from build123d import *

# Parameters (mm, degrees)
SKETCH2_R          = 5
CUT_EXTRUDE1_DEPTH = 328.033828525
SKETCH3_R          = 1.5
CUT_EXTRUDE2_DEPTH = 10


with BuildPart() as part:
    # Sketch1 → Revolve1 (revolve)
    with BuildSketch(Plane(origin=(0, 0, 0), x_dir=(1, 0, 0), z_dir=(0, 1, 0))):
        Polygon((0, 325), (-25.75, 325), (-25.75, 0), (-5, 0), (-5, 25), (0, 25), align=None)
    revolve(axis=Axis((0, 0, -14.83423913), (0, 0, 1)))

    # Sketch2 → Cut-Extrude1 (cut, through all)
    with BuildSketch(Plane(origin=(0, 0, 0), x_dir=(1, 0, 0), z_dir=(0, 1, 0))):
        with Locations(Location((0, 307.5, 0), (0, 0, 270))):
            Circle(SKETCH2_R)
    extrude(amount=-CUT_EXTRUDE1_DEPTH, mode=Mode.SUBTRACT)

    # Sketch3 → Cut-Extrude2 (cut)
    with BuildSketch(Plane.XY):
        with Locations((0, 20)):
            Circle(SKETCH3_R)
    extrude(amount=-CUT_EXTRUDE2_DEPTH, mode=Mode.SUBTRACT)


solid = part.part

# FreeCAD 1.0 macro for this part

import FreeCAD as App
import Part
import Sketcher
from FreeCAD import Vector


def add_polygon(sketch, points):
    """Adds a closed chain of lines whose ends are joined by coincident constraints."""
    first, n = sketch.GeometryCount, len(points)
    for a, b in zip(points, points[1:] + points[:1]):
        sketch.addGeometry(Part.LineSegment(App.Vector(*a, 0), App.Vector(*b, 0)), False)
    for i in range(n):
        sketch.addConstraint(Sketcher.Constraint("Coincident", first + i, 2, first + (i + 1) % n, 1))

doc = App.newDocument("Part")
params = doc.addObject("Spreadsheet::Sheet", "Params")
for row, (alias, value) in enumerate([
    ("sketch1_width", "5 mm"),
    ("sketch1_height", "325 mm"),
    ("sketch1_height2", "25 mm"),
    ("sketch1_width2", "25.75 mm"),
    ("revolution_angle", "360 deg"),
    ("sketch2_diameter", "10 mm"),
    ("sketch3_diameter", "3 mm"),
    ("pocket2_length", "10 mm"),
], start=1):
    params.set(f"A{row}", alias)
    params.set(f"B{row}", "=" + value)
    params.setAlias(f"B{row}", alias)

body = doc.addObject("PartDesign::Body", "Body")

sketch1 = doc.addObject("Sketcher::SketchObject", "Sketch")
body.addObject(sketch1)
sketch1.AttachmentSupport = (doc.XZ_Plane, [""])
sketch1.MapMode = "FlatFace"
add_polygon(sketch1, [(0, -325), (-26, -325), (-26, 0), (-5, 0), (-5, -25), (0, -25)])
sketch1.addConstraint([
    Sketcher.Constraint("Horizontal", 0),
    Sketcher.Constraint("Vertical", 1),
    Sketcher.Constraint("Horizontal", 2),
    Sketcher.Constraint("Vertical", 3),
    Sketcher.Constraint("Horizontal", 4),
    Sketcher.Constraint("Vertical", 5),
    Sketcher.Constraint("PointOnObject", 1, 2, -1),
    Sketcher.Constraint("PointOnObject", 4, 2, -2),
    Sketcher.Constraint("DistanceX", 4, 1, 4, 2, 5.0),
    Sketcher.Constraint("DistanceY", 1, 1, 1, 2, 325.0),
    Sketcher.Constraint("DistanceY", 3, 2, 3, 1, 25.0),
    Sketcher.Constraint("DistanceX", 0, 2, 0, 1, 25.75),
])
sketch1.setExpression("Constraints[14]", "Params.sketch1_width")
sketch1.setExpression("Constraints[15]", "Params.sketch1_height")
sketch1.setExpression("Constraints[16]", "Params.sketch1_height2")
sketch1.setExpression("Constraints[17]", "Params.sketch1_width2")
revolution = doc.addObject("PartDesign::Revolution", "Revolution")
body.addObject(revolution)
revolution.Profile = sketch1
revolution.ReferenceAxis = (sketch1, ["V_Axis"])
revolution.setExpression("Angle", "Params.revolution_angle")

sketch2 = doc.addObject("Sketcher::SketchObject", "Sketch001")
body.addObject(sketch2)
sketch2.AttachmentSupport = (doc.XZ_Plane, [""])
sketch2.MapMode = "FlatFace"
sketch2.addGeometry(Part.Circle(Vector(0, -308, 0), Vector(0, 0, 1), 5), False)
sketch2.addConstraint([
    Sketcher.Constraint("PointOnObject", 0, 3, -2),
    Sketcher.Constraint("Diameter", 0, 10.0),
    Sketcher.Constraint("DistanceY", 0, 3, -1, 1, 307.5),
])
sketch2.setExpression("Constraints[1]", "Params.sketch2_diameter")
pocket1 = doc.addObject("PartDesign::Pocket", "Pocket")
body.addObject(pocket1)
pocket1.Profile = sketch2
pocket1.Type = "ThroughAll"
pocket1.Reversed = True

sketch3 = doc.addObject("Sketcher::SketchObject", "Sketch002")
body.addObject(sketch3)
sketch3.AttachmentSupport = (doc.XY_Plane, [""])
sketch3.MapMode = "FlatFace"
sketch3.addGeometry(Part.Circle(Vector(0, 20, 0), Vector(0, 0, 1), 1.5), False)
sketch3.addConstraint([
    Sketcher.Constraint("PointOnObject", 0, 3, -2),
    Sketcher.Constraint("Diameter", 0, 3.0),
    Sketcher.Constraint("DistanceY", -1, 1, 0, 3, 20.0),
])
sketch3.setExpression("Constraints[1]", "Params.sketch3_diameter")
pocket2 = doc.addObject("PartDesign::Pocket", "Pocket001")
body.addObject(pocket2)
pocket2.Profile = sketch3
pocket2.setExpression("Length", "Params.pocket2_length")

doc.recompute()
